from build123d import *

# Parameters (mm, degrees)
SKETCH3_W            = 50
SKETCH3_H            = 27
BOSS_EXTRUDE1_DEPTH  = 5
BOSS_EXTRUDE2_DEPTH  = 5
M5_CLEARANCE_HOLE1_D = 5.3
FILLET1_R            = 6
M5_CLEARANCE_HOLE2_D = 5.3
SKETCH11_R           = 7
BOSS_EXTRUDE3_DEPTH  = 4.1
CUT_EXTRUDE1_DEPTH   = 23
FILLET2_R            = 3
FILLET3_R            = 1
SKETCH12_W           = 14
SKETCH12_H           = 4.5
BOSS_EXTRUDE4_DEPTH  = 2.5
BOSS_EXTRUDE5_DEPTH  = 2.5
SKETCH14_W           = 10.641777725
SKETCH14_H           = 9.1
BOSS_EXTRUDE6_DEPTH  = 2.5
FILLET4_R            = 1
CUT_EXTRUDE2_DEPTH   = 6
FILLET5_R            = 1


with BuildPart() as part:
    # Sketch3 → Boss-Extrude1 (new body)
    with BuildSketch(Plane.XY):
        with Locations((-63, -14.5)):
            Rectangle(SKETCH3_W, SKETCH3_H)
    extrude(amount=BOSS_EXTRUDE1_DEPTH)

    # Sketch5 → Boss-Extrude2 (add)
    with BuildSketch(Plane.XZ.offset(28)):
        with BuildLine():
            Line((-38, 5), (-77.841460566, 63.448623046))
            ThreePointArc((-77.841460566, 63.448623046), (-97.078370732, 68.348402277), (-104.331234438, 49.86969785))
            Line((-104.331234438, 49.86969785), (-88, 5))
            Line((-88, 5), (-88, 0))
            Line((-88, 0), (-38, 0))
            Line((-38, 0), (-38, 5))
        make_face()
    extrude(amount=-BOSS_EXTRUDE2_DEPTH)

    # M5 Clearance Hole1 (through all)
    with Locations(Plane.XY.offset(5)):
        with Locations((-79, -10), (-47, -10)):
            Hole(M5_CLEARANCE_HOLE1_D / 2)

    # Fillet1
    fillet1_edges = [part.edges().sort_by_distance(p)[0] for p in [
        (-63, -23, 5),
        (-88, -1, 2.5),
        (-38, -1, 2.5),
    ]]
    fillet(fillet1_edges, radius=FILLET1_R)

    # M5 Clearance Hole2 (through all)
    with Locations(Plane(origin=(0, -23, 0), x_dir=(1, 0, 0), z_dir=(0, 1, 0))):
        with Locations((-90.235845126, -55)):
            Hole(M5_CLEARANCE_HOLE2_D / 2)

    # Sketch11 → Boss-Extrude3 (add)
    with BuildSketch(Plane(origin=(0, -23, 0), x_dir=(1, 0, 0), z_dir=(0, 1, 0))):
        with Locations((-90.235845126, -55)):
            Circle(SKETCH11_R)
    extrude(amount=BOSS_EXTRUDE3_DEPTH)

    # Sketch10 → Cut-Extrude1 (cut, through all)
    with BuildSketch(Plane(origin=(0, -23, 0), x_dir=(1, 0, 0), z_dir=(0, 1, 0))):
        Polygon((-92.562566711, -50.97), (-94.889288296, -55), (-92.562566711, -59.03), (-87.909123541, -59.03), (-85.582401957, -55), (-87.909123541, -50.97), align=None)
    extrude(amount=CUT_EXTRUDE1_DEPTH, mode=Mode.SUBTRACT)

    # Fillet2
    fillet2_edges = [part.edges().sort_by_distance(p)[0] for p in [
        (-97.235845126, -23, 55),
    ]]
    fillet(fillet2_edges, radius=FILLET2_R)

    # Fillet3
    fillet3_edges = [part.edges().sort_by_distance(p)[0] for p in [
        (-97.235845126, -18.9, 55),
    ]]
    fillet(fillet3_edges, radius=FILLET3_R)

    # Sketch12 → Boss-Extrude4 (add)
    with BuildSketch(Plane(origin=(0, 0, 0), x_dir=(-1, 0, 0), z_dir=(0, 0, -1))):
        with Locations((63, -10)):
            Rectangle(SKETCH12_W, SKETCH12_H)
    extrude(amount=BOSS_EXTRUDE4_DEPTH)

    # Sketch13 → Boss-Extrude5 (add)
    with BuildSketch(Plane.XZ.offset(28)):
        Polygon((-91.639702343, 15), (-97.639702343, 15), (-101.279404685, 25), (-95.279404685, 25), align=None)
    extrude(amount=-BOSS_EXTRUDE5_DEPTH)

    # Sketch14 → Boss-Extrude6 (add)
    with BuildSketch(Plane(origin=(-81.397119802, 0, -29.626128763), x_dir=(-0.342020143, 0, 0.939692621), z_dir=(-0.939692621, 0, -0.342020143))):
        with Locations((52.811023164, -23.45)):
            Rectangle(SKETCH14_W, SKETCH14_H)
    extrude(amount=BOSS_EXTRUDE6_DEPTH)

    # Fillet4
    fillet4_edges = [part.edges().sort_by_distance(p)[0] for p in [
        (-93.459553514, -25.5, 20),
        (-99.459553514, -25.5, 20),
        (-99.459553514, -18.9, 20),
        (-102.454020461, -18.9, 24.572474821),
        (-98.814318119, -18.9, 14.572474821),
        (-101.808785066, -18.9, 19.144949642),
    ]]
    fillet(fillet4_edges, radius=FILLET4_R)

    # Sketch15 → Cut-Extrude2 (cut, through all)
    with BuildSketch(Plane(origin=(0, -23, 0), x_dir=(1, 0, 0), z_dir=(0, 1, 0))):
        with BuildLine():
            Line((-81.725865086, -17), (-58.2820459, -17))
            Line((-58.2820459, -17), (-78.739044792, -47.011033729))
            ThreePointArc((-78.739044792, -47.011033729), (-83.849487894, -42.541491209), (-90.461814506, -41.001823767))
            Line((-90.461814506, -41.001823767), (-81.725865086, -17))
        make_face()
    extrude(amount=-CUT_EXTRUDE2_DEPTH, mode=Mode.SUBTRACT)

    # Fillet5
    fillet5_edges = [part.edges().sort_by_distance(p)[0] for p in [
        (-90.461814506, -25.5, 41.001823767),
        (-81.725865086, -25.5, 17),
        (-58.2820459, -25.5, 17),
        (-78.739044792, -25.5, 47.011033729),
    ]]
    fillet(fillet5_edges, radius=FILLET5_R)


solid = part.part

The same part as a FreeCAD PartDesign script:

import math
import FreeCAD as App
import Part
import Sketcher
Q = App.Units.Quantity


def edges_at(feature, points):
    """Names of the edges that pass closest to the given points."""
    edges = feature.Shape.Edges
    near = lambda p: min(range(len(edges)), key=lambda i: edges[i].distToShape(Part.Vertex(*p))[0])
    return sorted({f"Edge{near(p) + 1}" for p in points})

doc = App.newDocument("Part")
body = doc.addObject("PartDesign::Body", "Body")

sketch1 = body.newObject("Sketcher::SketchObject", "Sketch")
sketch1.AttachmentSupport = (doc.getObject("XY_Plane"), [""])
sketch1.MapMode = "FlatFace"
sketch1.addGeometry([
    Part.LineSegment(App.Vector(-88, -1, 0), App.Vector(-88, -28, 0)),
    Part.LineSegment(App.Vector(-88, -28, 0), App.Vector(-38, -28, 0)),
    Part.LineSegment(App.Vector(-38, -28, 0), App.Vector(-38, -1, 0)),
    Part.LineSegment(App.Vector(-38, -1, 0), App.Vector(-88, -1, 0)),
], False)
sketch1.addConstraint([
    Sketcher.Constraint("Coincident", 0, 2, 1, 1),
    Sketcher.Constraint("Coincident", 1, 2, 2, 1),
    Sketcher.Constraint("Coincident", 2, 2, 3, 1),
    Sketcher.Constraint("Coincident", 3, 2, 0, 1),
    Sketcher.Constraint("Vertical", 0),
    Sketcher.Constraint("Horizontal", 1),
    Sketcher.Constraint("Vertical", 2),
    Sketcher.Constraint("Horizontal", 3),
    Sketcher.Constraint("DistanceX", 1, 1, 1, 2, 50.0),
    Sketcher.Constraint("DistanceY", 0, 2, 0, 1, 27.0),
    Sketcher.Constraint("DistanceX", 0, 2, -1, 1, 88.0),
    Sketcher.Constraint("DistanceY", 0, 2, -1, 1, 28.0),
])
pad1 = body.newObject("PartDesign::Pad", "Pad")
pad1.Profile = sketch1
pad1.Length = 5

sketch2 = body.newObject("Sketcher::SketchObject", "Sketch001")
sketch2.AttachmentSupport = (doc.getObject("XZ_Plane"), [""])
sketch2.MapMode = "FlatFace"
sketch2.AttachmentOffset = App.Placement(App.Vector(0, 0, 28), App.Rotation())
sketch2.addGeometry([
    Part.LineSegment(App.Vector(-38, 5, 0), App.Vector(-77.841461, 63.448623, 0)),
    Part.ArcOfCircle(Part.Circle(App.Vector(-90.235845, 55, 0), App.Vector(0, 0, 1), 15), math.radians(34.280269), math.radians(200)),
    Part.LineSegment(App.Vector(-104.331234, 49.869698, 0), App.Vector(-88, 5, 0)),
    Part.LineSegment(App.Vector(-88, 5, 0), App.Vector(-88, 0, 0)),
    Part.LineSegment(App.Vector(-88, 0, 0), App.Vector(-38, 0, 0)),
    Part.LineSegment(App.Vector(-38, 0, 0), App.Vector(-38, 5, 0)),
], False)
sketch2.addConstraint([
    Sketcher.Constraint("Tangent", 0, 2, 1, 1),
    Sketcher.Constraint("Tangent", 1, 2, 2, 1),
    Sketcher.Constraint("Coincident", 2, 2, 3, 1),
    Sketcher.Constraint("Coincident", 3, 2, 4, 1),
    Sketcher.Constraint("Coincident", 4, 2, 5, 1),
    Sketcher.Constraint("Coincident", 5, 2, 0, 1),
    Sketcher.Constraint("Vertical", 3),
    Sketcher.Constraint("Horizontal", 4),
    Sketcher.Constraint("Vertical", 5),
    Sketcher.Constraint("PointOnObject", 3, 2, -1),
    Sketcher.Constraint("Horizontal", 2, 2, 5, 2),
    Sketcher.Constraint("Radius", 1, 15.0),
    Sketcher.Constraint("DistanceX", 4, 1, 4, 2, 50.0),
    Sketcher.Constraint("DistanceY", 3, 2, 3, 1, 5.0),
    Sketcher.Constraint("Angle", 2, Q("-70 deg")),
    Sketcher.Constraint("DistanceY", -1, 1, 1, 3, 55.0),
    Sketcher.Constraint("DistanceX", 2, 2, -1, 1, 88.0),
])
pad2 = body.newObject("PartDesign::Pad", "Pad001")
pad2.Profile = sketch2
pad2.Length = 5
pad2.Reversed = True

sketch3 = body.newObject("Sketcher::SketchObject", "Sketch002")
sketch3.AttachmentSupport = (doc.getObject("XY_Plane"), [""])
sketch3.MapMode = "FlatFace"
sketch3.AttachmentOffset = App.Placement(App.Vector(0, 0, 5), App.Rotation())
sketch3.addGeometry([
    Part.Circle(App.Vector(-79, -10, 0), App.Vector(0, 0, 1), 2.65),
    Part.Circle(App.Vector(-47, -10, 0), App.Vector(0, 0, 1), 2.65),
], False)
sketch3.addConstraint([
    Sketcher.Constraint("Equal", 0, 1),
    Sketcher.Constraint("Horizontal", 0, 3, 1, 3),
    Sketcher.Constraint("Diameter", 0, 5.3),
    Sketcher.Constraint("DistanceX", 0, 3, -1, 1, 79.0),
    Sketcher.Constraint("DistanceY", 0, 3, -1, 1, 10.0),
    Sketcher.Constraint("DistanceX", 1, 3, -1, 1, 47.0),
])
doc.recompute()
hole = body.newObject("PartDesign::Hole", "Hole")
hole.Profile = sketch3
hole.ThreadType = "None"
hole.Diameter = 5.3
hole.DepthType = "ThroughAll"
doc.recompute()

fillet = body.newObject("PartDesign::Fillet", "Fillet")
fillet.Base = (hole, edges_at(hole, [(-63, -23, 5), (-88, -1, 2.5), (-38, -1, 2.5)]))
fillet.Radius = 6

sketch4 = body.newObject("Sketcher::SketchObject", "Sketch003")
sketch4.AttachmentSupport = (doc.getObject("XZ_Plane"), [""])
sketch4.MapMode = "FlatFace"
sketch4.AttachmentOffset = App.Placement(App.Vector(0, 0, 23), App.Rotation())
sketch4.addGeometry(Part.Circle(App.Vector(-90.235845, 55, 0), App.Vector(0, 0, 1), 2.65), False)
sketch4.addConstraint([
    Sketcher.Constraint("Diameter", 0, 5.3),
    Sketcher.Constraint("DistanceY", -1, 1, 0, 3, 55.0),
    Sketcher.Constraint("DistanceX", 0, 3, -1, 1, 90.235845),
])
doc.recompute()
hole2 = body.newObject("PartDesign::Hole", "Hole001")
hole2.Profile = sketch4
hole2.ThreadType = "None"
hole2.Diameter = 5.3
hole2.DepthType = "ThroughAll"
hole2.Reversed = True

sketch5 = body.newObject("Sketcher::SketchObject", "Sketch004")
sketch5.AttachmentSupport = (doc.getObject("XZ_Plane"), [""])
sketch5.MapMode = "FlatFace"
sketch5.AttachmentOffset = App.Placement(App.Vector(0, 0, 23), App.Rotation())
sketch5.addGeometry(Part.Circle(App.Vector(-90.235845, 55, 0), App.Vector(0, 0, 1), 7), False)
sketch5.addConstraint([
    Sketcher.Constraint("Diameter", 0, 14.0),
    Sketcher.Constraint("DistanceY", -1, 1, 0, 3, 55.0),
    Sketcher.Constraint("DistanceX", 0, 3, -1, 1, 90.235845),
])
pad3 = body.newObject("PartDesign::Pad", "Pad002")
pad3.Profile = sketch5
pad3.Length = 4.1
pad3.Reversed = True

sketch6 = body.newObject("Sketcher::SketchObject", "Sketch005")
sketch6.AttachmentSupport = (doc.getObject("XZ_Plane"), [""])
sketch6.MapMode = "FlatFace"
sketch6.AttachmentOffset = App.Placement(App.Vector(0, 0, 23), App.Rotation())
sketch6.addGeometry([
    Part.LineSegment(App.Vector(-92.562567, 50.97, 0), App.Vector(-94.889288, 55, 0)),
    Part.LineSegment(App.Vector(-94.889288, 55, 0), App.Vector(-92.562567, 59.03, 0)),
    Part.LineSegment(App.Vector(-92.562567, 59.03, 0), App.Vector(-87.909124, 59.03, 0)),
    Part.LineSegment(App.Vector(-87.909124, 59.03, 0), App.Vector(-85.582402, 55, 0)),
    Part.LineSegment(App.Vector(-85.582402, 55, 0), App.Vector(-87.909124, 50.97, 0)),
    Part.LineSegment(App.Vector(-87.909124, 50.97, 0), App.Vector(-92.562567, 50.97, 0)),
], False)
sketch6.addConstraint([
    Sketcher.Constraint("Coincident", 0, 2, 1, 1),
    Sketcher.Constraint("Coincident", 1, 2, 2, 1),
    Sketcher.Constraint("Coincident", 2, 2, 3, 1),
    Sketcher.Constraint("Coincident", 3, 2, 4, 1),
    Sketcher.Constraint("Coincident", 4, 2, 5, 1),
    Sketcher.Constraint("Coincident", 5, 2, 0, 1),
    Sketcher.Constraint("Horizontal", 2),
    Sketcher.Constraint("Horizontal", 5),
    Sketcher.Constraint("Parallel", 0, 3),
    Sketcher.Constraint("Parallel", 1, 4),
    Sketcher.Constraint("Horizontal", 0, 2, 3, 2),
    Sketcher.Constraint("Vertical", 2, 2, 4, 2),
    Sketcher.Constraint("Vertical", 1, 2, 5, 2),
    Sketcher.Constraint("Angle", 0, Q("120 deg")),
    Sketcher.Constraint("DistanceY", -1, 1, 0, 2, 55.0),
    Sketcher.Constraint("DistanceY", -1, 1, 1, 2, 59.03),
    Sketcher.Constraint("DistanceX", 3, 2, -1, 1, 85.582402),
    Sketcher.Constraint("DistanceX", 2, 1, 2, 2, 4.653443),
])
pocket1 = body.newObject("PartDesign::Pocket", "Pocket")
pocket1.Profile = sketch6
pocket1.Type = "ThroughAll"
doc.recompute()

fillet2 = body.newObject("PartDesign::Fillet", "Fillet001")
fillet2.Base = (pocket1, edges_at(pocket1, [(-97.236, -23, 55)]))
fillet2.Radius = 3
doc.recompute()

fillet3 = body.newObject("PartDesign::Fillet", "Fillet002")
fillet3.Base = (fillet2, edges_at(fillet2, [(-97.236, -18.9, 55)]))
fillet3.Radius = 1

sketch7 = body.newObject("Sketcher::SketchObject", "Sketch006")
sketch7.AttachmentSupport = (doc.getObject("XY_Plane"), [""])
sketch7.MapMode = "FlatFace"
sketch7.addGeometry([
    Part.LineSegment(App.Vector(-56, -7.75, 0), App.Vector(-56, -12.25, 0)),
    Part.LineSegment(App.Vector(-56, -12.25, 0), App.Vector(-70, -12.25, 0)),
    Part.LineSegment(App.Vector(-70, -12.25, 0), App.Vector(-70, -7.75, 0)),
    Part.LineSegment(App.Vector(-70, -7.75, 0), App.Vector(-56, -7.75, 0)),
], False)
sketch7.addConstraint([
    Sketcher.Constraint("Coincident", 0, 2, 1, 1),
    Sketcher.Constraint("Coincident", 1, 2, 2, 1),
    Sketcher.Constraint("Coincident", 2, 2, 3, 1),
    Sketcher.Constraint("Coincident", 3, 2, 0, 1),
    Sketcher.Constraint("Vertical", 0),
    Sketcher.Constraint("Horizontal", 1),
    Sketcher.Constraint("Vertical", 2),
    Sketcher.Constraint("Horizontal", 3),
    Sketcher.Constraint("DistanceX", 1, 2, 1, 1, 14.0),
    Sketcher.Constraint("DistanceY", 0, 2, 0, 1, 4.5),
    Sketcher.Constraint("DistanceX", 0, 2, -1, 1, 56.0),
    Sketcher.Constraint("DistanceY", 0, 2, -1, 1, 12.25),
])
pad4 = body.newObject("PartDesign::Pad", "Pad003")
pad4.Profile = sketch7
pad4.Length = 2.5
pad4.Reversed = True

sketch8 = body.newObject("Sketcher::SketchObject", "Sketch007")
sketch8.AttachmentSupport = (doc.getObject("XZ_Plane"), [""])
sketch8.MapMode = "FlatFace"
sketch8.AttachmentOffset = App.Placement(App.Vector(0, 0, 28), App.Rotation())
sketch8.addGeometry([
    Part.LineSegment(App.Vector(-97.639702, 15, 0), App.Vector(-91.639702, 15, 0)),
    Part.LineSegment(App.Vector(-91.639702, 15, 0), App.Vector(-95.279405, 25, 0)),
    Part.LineSegment(App.Vector(-95.279405, 25, 0), App.Vector(-101.279405, 25, 0)),
    Part.LineSegment(App.Vector(-101.279405, 25, 0), App.Vector(-97.639702, 15, 0)),
], False)
sketch8.addConstraint([
    Sketcher.Constraint("Coincident", 0, 2, 1, 1),
    Sketcher.Constraint("Coincident", 1, 2, 2, 1),
    Sketcher.Constraint("Coincident", 2, 2, 3, 1),
    Sketcher.Constraint("Coincident", 3, 2, 0, 1),
    Sketcher.Constraint("Horizontal", 0),
    Sketcher.Constraint("Horizontal", 2),
    Sketcher.Constraint("Parallel", 1, 3),
    Sketcher.Constraint("DistanceX", 0, 1, 0, 2, 6.0),
    Sketcher.Constraint("Angle", 1, Q("110 deg")),
    Sketcher.Constraint("DistanceY", -1, 1, 0, 2, 15.0),
    Sketcher.Constraint("DistanceY", -1, 1, 1, 2, 25.0),
    Sketcher.Constraint("DistanceX", 0, 2, -1, 1, 91.639702),
])
pad5 = body.newObject("PartDesign::Pad", "Pad004")
pad5.Profile = sketch8
pad5.Length = 2.5
pad5.Reversed = True

sketch9 = body.newObject("Sketcher::SketchObject", "Sketch008")
sketch9.Placement = App.Placement(App.Vector(-81.39712, 0, -29.626129), App.Rotation(App.Vector(-0.342020143, 0, 0.939692621), App.Vector(0, 1, 0), App.Vector(-0.939692621, 0, -0.342020143), "ZXY"))
sketch9.addGeometry([
    Part.LineSegment(App.Vector(47.490134, -18.9, 0), App.Vector(47.490134, -28, 0)),
    Part.LineSegment(App.Vector(47.490134, -28, 0), App.Vector(58.131912, -28, 0)),
    Part.LineSegment(App.Vector(58.131912, -28, 0), App.Vector(58.131912, -18.9, 0)),
    Part.LineSegment(App.Vector(58.131912, -18.9, 0), App.Vector(47.490134, -18.9, 0)),
], False)
sketch9.addConstraint([
    Sketcher.Constraint("Coincident", 0, 2, 1, 1),
    Sketcher.Constraint("Coincident", 1, 2, 2, 1),
    Sketcher.Constraint("Coincident", 2, 2, 3, 1),
    Sketcher.Constraint("Coincident", 3, 2, 0, 1),
    Sketcher.Constraint("Vertical", 0),
    Sketcher.Constraint("Horizontal", 1),
    Sketcher.Constraint("Vertical", 2),
    Sketcher.Constraint("Horizontal", 3),
    Sketcher.Constraint("DistanceY", 0, 2, 0, 1, 9.1),
    Sketcher.Constraint("DistanceY", 0, 2, -1, 1, 28.0),
    Sketcher.Constraint("DistanceX", 1, 1, 1, 2, 10.641778),
    Sketcher.Constraint("DistanceX", -1, 1, 0, 2, 47.490134),
])
pad6 = body.newObject("PartDesign::Pad", "Pad005")
pad6.Profile = sketch9
pad6.Length = 2.5
doc.recompute()

fillet4 = body.newObject("PartDesign::Fillet", "Fillet003")
fillet4.Base = (pad6, edges_at(pad6, [
    (-93.46, -25.5, 20),
    (-99.46, -25.5, 20),
    (-99.46, -18.9, 20),
    (-102.454, -18.9, 24.572),
    (-98.814, -18.9, 14.572),
    (-101.809, -18.9, 19.145),
]))
fillet4.Radius = 1

sketch10 = body.newObject("Sketcher::SketchObject", "Sketch009")
sketch10.AttachmentSupport = (doc.getObject("XZ_Plane"), [""])
sketch10.MapMode = "FlatFace"
sketch10.AttachmentOffset = App.Placement(App.Vector(0, 0, 23), App.Rotation())
sketch10.addGeometry([
    Part.LineSegment(App.Vector(-58.282046, 17, 0), App.Vector(-81.725865, 17, 0)),
    Part.LineSegment(App.Vector(-81.725865, 17, 0), App.Vector(-90.461815, 41.001824, 0)),
    Part.ArcOfCircle(Part.Circle(App.Vector(-90.235845, 55, 0), App.Vector(0, 0, 1), 14), math.radians(-90.924832), math.radians(-34.794898)),
    Part.LineSegment(App.Vector(-78.739045, 47.011034, 0), App.Vector(-58.282046, 17, 0)),
], False)
sketch10.addConstraint([
    Sketcher.Constraint("Coincident", 0, 2, 1, 1),
    Sketcher.Constraint("Coincident", 1, 2, 2, 1),
    Sketcher.Constraint("Coincident", 2, 2, 3, 1),
    Sketcher.Constraint("Coincident", 3, 2, 0, 1),
    Sketcher.Constraint("Horizontal", 0),
    Sketcher.Constraint("Radius", 2, 14.0),
    Sketcher.Constraint("Angle", 1, Q("110 deg")),
    Sketcher.Constraint("DistanceY", -1, 1, 2, 3, 55.0),
    Sketcher.Constraint("DistanceY", -1, 1, 0, 2, 17.0),
    Sketcher.Constraint("DistanceX", 2, 2, 3, 2, 20.456999),
    Sketcher.Constraint("DistanceX", 0, 2, 0, 1, 23.443819),
    Sketcher.Constraint("DistanceX", 2, 3, 2, 2, 11.4968),
    Sketcher.Constraint("DistanceX", 2, 3, -1, 1, 90.235845),
])
pocket2 = body.newObject("PartDesign::Pocket", "Pocket001")
pocket2.Profile = sketch10
pocket2.Type = "ThroughAll"
pocket2.Reversed = True
doc.recompute()

fillet5 = body.newObject("PartDesign::Fillet", "Fillet004")
fillet5.Base = (pocket2, edges_at(pocket2, [
    (-90.462, -25.5, 41.002),
    (-81.726, -25.5, 17),
    (-58.282, -25.5, 17),
    (-78.739, -25.5, 47.011),
]))
fillet5.Radius = 1

doc.recompute()
